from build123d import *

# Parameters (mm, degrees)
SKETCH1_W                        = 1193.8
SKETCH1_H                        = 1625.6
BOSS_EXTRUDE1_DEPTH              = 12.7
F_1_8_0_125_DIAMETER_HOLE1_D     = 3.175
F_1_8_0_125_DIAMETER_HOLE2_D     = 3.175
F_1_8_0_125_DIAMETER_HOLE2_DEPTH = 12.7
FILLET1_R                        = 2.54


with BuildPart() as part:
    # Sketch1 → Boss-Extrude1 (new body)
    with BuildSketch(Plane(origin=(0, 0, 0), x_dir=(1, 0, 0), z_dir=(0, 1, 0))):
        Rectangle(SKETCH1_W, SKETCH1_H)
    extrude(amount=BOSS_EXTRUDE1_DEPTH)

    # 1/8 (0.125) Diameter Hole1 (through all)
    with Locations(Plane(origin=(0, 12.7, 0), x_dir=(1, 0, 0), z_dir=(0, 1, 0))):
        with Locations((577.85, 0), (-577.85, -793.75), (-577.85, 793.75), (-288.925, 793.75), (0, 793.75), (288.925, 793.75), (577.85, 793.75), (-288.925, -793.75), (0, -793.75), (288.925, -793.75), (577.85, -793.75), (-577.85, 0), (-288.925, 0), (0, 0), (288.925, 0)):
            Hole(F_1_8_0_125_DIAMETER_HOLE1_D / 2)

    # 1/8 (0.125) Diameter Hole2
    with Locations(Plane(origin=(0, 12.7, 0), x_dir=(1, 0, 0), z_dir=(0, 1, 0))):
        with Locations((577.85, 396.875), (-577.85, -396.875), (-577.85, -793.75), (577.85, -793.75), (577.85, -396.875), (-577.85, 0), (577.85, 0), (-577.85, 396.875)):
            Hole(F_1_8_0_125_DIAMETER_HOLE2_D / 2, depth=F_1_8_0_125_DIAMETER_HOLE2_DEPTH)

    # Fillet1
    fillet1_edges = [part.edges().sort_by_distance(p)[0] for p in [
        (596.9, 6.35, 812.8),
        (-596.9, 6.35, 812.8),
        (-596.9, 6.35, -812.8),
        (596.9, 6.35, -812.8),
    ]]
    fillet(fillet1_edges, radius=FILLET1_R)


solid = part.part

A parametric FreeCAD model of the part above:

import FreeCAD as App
import Part
import Sketcher
Q = App.Units.Quantity


def edges_at(feature, points):
    """Names of the edges that pass closest to the given points."""
    edges = feature.Shape.Edges
    near = lambda p: min(range(len(edges)), key=lambda i: edges[i].distToShape(Part.Vertex(*p))[0])
    return sorted({f"Edge{near(p) + 1}" for p in points})


def add_polygon(sketch, points):
    """Adds a closed chain of lines whose ends are joined by coincident constraints."""
    first, n = sketch.GeometryCount, len(points)
    for a, b in zip(points, points[1:] + points[:1]):
        sketch.addGeometry(Part.LineSegment(App.Vector(*a, 0), App.Vector(*b, 0)), False)
    for i in range(n):
        sketch.addConstraint(Sketcher.Constraint("Coincident", first + i, 2, first + (i + 1) % n, 1))

doc = App.newDocument("Part")
body = doc.addObject("PartDesign::Body", "Body")

sketch1 = doc.addObject("Sketcher::SketchObject", "Sketch")
body.addObject(sketch1)
sketch1.AttachmentSupport = (doc.XZ_Plane, [""])
sketch1.MapMode = "FlatFace"
add_polygon(sketch1, [(-597, -813), (-597, 813), (597, 813), (597, -813)])
sketch1.addConstraint(Sketcher.Constraint("Vertical", 0))
sketch1.addConstraint(Sketcher.Constraint("Horizontal", 1))
sketch1.addConstraint(Sketcher.Constraint("Vertical", 2))
sketch1.addConstraint(Sketcher.Constraint("Horizontal", 3))
sketch1.addConstraint(Sketcher.Constraint("Symmetric", 0, 2, 2, 2, -1, 1))
sketch1.addConstraint(Sketcher.Constraint("DistanceX", 1, 1, 1, 2, Q("47 in")))
sketch1.addConstraint(Sketcher.Constraint("DistanceY", 0, 1, 0, 2, Q("64 in")))
pad1 = doc.addObject("PartDesign::Pad", "Pad")
body.addObject(pad1)
pad1.Profile = sketch1
pad1.Length = Q("0.5 in")
pad1.Reversed = True

sketch2 = doc.addObject("Sketcher::SketchObject", "Sketch001")
body.addObject(sketch2)
sketch2.AttachmentSupport = (doc.XZ_Plane, [""])
sketch2.MapMode = "FlatFace"
sketch2.AttachmentOffset = App.Placement(App.Vector(0, 0, -0.5 * 25.4), App.Rotation())
sketch2.addGeometry(Part.Circle(App.Vector(577.9, 0, 0), App.Vector(0, 0, 1), 1.6), False)
sketch2.addGeometry(Part.Circle(App.Vector(-577.9, 793.8, 0), App.Vector(0, 0, 1), 1.6), False)
sketch2.addGeometry(Part.Circle(App.Vector(-577.9, -793.8, 0), App.Vector(0, 0, 1), 1.6), False)
sketch2.addGeometry(Part.Circle(App.Vector(-288.9, -793.8, 0), App.Vector(0, 0, 1), 1.6), False)
sketch2.addGeometry(Part.Circle(App.Vector(0, -793.8, 0), App.Vector(0, 0, 1), 1.6), False)
sketch2.addGeometry(Part.Circle(App.Vector(288.9, -793.8, 0), App.Vector(0, 0, 1), 1.6), False)
sketch2.addGeometry(Part.Circle(App.Vector(577.9, -793.8, 0), App.Vector(0, 0, 1), 1.6), False)
sketch2.addGeometry(Part.Circle(App.Vector(-288.9, 793.8, 0), App.Vector(0, 0, 1), 1.6), False)
sketch2.addGeometry(Part.Circle(App.Vector(0, 793.8, 0), App.Vector(0, 0, 1), 1.6), False)
sketch2.addGeometry(Part.Circle(App.Vector(288.9, 793.8, 0), App.Vector(0, 0, 1), 1.6), False)
sketch2.addGeometry(Part.Circle(App.Vector(577.9, 793.8, 0), App.Vector(0, 0, 1), 1.6), False)
sketch2.addGeometry(Part.Circle(App.Vector(-577.9, 0, 0), App.Vector(0, 0, 1), 1.6), False)
sketch2.addGeometry(Part.Circle(App.Vector(-288.9, 0, 0), App.Vector(0, 0, 1), 1.6), False)
sketch2.addGeometry(Part.Circle(App.Vector(0, 0, 0), App.Vector(0, 0, 1), 1.6), False)
sketch2.addGeometry(Part.Circle(App.Vector(288.9, 0, 0), App.Vector(0, 0, 1), 1.6), False)
sketch2.addConstraint(Sketcher.Constraint("Coincident", 13, 3, -1, 1))
sketch2.addConstraint(Sketcher.Constraint("Equal", 0, 1))
sketch2.addConstraint(Sketcher.Constraint("Equal", 1, 2))
sketch2.addConstraint(Sketcher.Constraint("Equal", 2, 3))
sketch2.addConstraint(Sketcher.Constraint("Equal", 3, 4))
sketch2.addConstraint(Sketcher.Constraint("Equal", 4, 5))
sketch2.addConstraint(Sketcher.Constraint("Equal", 5, 6))
sketch2.addConstraint(Sketcher.Constraint("Equal", 6, 7))
sketch2.addConstraint(Sketcher.Constraint("Equal", 7, 8))
sketch2.addConstraint(Sketcher.Constraint("Equal", 8, 9))
sketch2.addConstraint(Sketcher.Constraint("Equal", 9, 10))
sketch2.addConstraint(Sketcher.Constraint("Equal", 10, 11))
sketch2.addConstraint(Sketcher.Constraint("Equal", 11, 12))
sketch2.addConstraint(Sketcher.Constraint("Equal", 12, 13))
sketch2.addConstraint(Sketcher.Constraint("Equal", 13, 14))
sketch2.addConstraint(Sketcher.Constraint("Symmetric", 1, 3, 6, 3, -1, 1))
sketch2.addConstraint(Sketcher.Constraint("Symmetric", 5, 3, 7, 3, -1, 1))
sketch2.addConstraint(Sketcher.Constraint("Symmetric", 4, 3, 8, 3, -1, 1))
sketch2.addConstraint(Sketcher.Constraint("Symmetric", 3, 3, 9, 3, -1, 1))
sketch2.addConstraint(Sketcher.Constraint("Symmetric", 2, 3, 10, 3, -1, 1))
sketch2.addConstraint(Sketcher.Constraint("Symmetric", 0, 3, 11, 3, -1, 1))
sketch2.addConstraint(Sketcher.Constraint("Symmetric", 12, 3, 14, 3, -1, 1))
sketch2.addConstraint(Sketcher.Constraint("Symmetric", 3, 3, 5, 3, -2))
sketch2.addConstraint(Sketcher.Constraint("Symmetric", 2, 3, 6, 3, -2))
sketch2.addConstraint(Sketcher.Constraint("PointOnObject", 0, 3, -1))
sketch2.addConstraint(Sketcher.Constraint("PointOnObject", 4, 3, -2))
sketch2.addConstraint(Sketcher.Constraint("PointOnObject", 12, 3, -1))
sketch2.addConstraint(Sketcher.Constraint("Horizontal", 2, 3, 3, 3))
sketch2.addConstraint(Sketcher.Constraint("Horizontal", 3, 3, 4, 3))
sketch2.addConstraint(Sketcher.Constraint("Vertical", 0, 3, 6, 3))
sketch2.addConstraint(Sketcher.Constraint("Vertical", 7, 3, 12, 3))
sketch2.addConstraint(Sketcher.Constraint("Diameter", 0, Q("0.125 in")))
sketch2.addConstraint(Sketcher.Constraint("DistanceX", 1, 3, 0, 3, Q("45.5 in")))
sketch2.addConstraint(Sketcher.Constraint("DistanceY", 2, 3, 1, 3, Q("62.5 in")))
sketch2.addConstraint(Sketcher.Constraint("DistanceX", 3, 3, 5, 3, Q("22.75 in")))
doc.recompute()
hole = doc.addObject("PartDesign::Hole", "Hole")
body.addObject(hole)
hole.Profile = sketch2
hole.ThreadType = "None"
hole.Diameter = Q("0.125 in")
hole.DepthType = "ThroughAll"
hole.Reversed = True

sketch3 = doc.addObject("Sketcher::SketchObject", "Sketch002")
body.addObject(sketch3)
sketch3.AttachmentSupport = (doc.XZ_Plane, [""])
sketch3.MapMode = "FlatFace"
sketch3.AttachmentOffset = App.Placement(App.Vector(0, 0, -0.5 * 25.4), App.Rotation())
sketch3.addGeometry(Part.Circle(App.Vector(577.9, -396.9, 0), App.Vector(0, 0, 1), 1.6), False)
sketch3.addGeometry(Part.Circle(App.Vector(-577.9, 396.9, 0), App.Vector(0, 0, 1), 1.6), False)
sketch3.addGeometry(Part.Circle(App.Vector(-577.9, 793.8, 0), App.Vector(0, 0, 1), 1.6), False)
sketch3.addGeometry(Part.Circle(App.Vector(577.9, 793.8, 0), App.Vector(0, 0, 1), 1.6), False)
sketch3.addGeometry(Part.Circle(App.Vector(577.9, 396.9, 0), App.Vector(0, 0, 1), 1.6), False)
sketch3.addGeometry(Part.Circle(App.Vector(-577.9, 0, 0), App.Vector(0, 0, 1), 1.6), False)
sketch3.addGeometry(Part.Circle(App.Vector(577.9, 0, 0), App.Vector(0, 0, 1), 1.6), False)
sketch3.addGeometry(Part.Circle(App.Vector(-577.9, -396.9, 0), App.Vector(0, 0, 1), 1.6), False)
sketch3.addConstraint(Sketcher.Constraint("Equal", 0, 1))
sketch3.addConstraint(Sketcher.Constraint("Equal", 1, 2))
sketch3.addConstraint(Sketcher.Constraint("Equal", 2, 3))
sketch3.addConstraint(Sketcher.Constraint("Equal", 3, 4))
sketch3.addConstraint(Sketcher.Constraint("Equal", 4, 5))
sketch3.addConstraint(Sketcher.Constraint("Equal", 5, 6))
sketch3.addConstraint(Sketcher.Constraint("Equal", 6, 7))
sketch3.addConstraint(Sketcher.Constraint("Symmetric", 0, 3, 1, 3, -1, 1))
sketch3.addConstraint(Sketcher.Constraint("Symmetric", 5, 3, 6, 3, -1, 1))
sketch3.addConstraint(Sketcher.Constraint("Symmetric", 4, 3, 7, 3, -1, 1))
sketch3.addConstraint(Sketcher.Constraint("Symmetric", 2, 3, 3, 3, -2))
sketch3.addConstraint(Sketcher.Constraint("Symmetric", 1, 3, 4, 3, -2))
sketch3.addConstraint(Sketcher.Constraint("PointOnObject", 5, 3, -1))
sketch3.addConstraint(Sketcher.Constraint("Vertical", 1, 3, 2, 3))
sketch3.addConstraint(Sketcher.Constraint("Vertical", 2, 3, 5, 3))
sketch3.addConstraint(Sketcher.Constraint("Diameter", 0, Q("0.125 in")))
sketch3.addConstraint(Sketcher.Constraint("DistanceX", 1, 3, 0, 3, Q("45.5 in")))
sketch3.addConstraint(Sketcher.Constraint("DistanceY", -1, 1, 2, 3, Q("31.25 in")))
sketch3.addConstraint(Sketcher.Constraint("DistanceY", 0, 3, 1, 3, Q("31.25 in")))
doc.recompute()
hole2 = doc.addObject("PartDesign::Hole", "Hole001")
body.addObject(hole2)
hole2.Profile = sketch3
hole2.ThreadType = "None"
hole2.Diameter = Q("0.125 in")
hole2.DepthType = "Dimension"
hole2.Depth = Q("0.5 in")
hole2.DrillPoint = "Flat"
hole2.Reversed = True
doc.recompute()

fillet = doc.addObject("PartDesign::Fillet", "Fillet")
body.addObject(fillet)
fillet.Base = (hole2, edges_at(hole2, [
    (596.9, 6.35, 812.8),
    (-596.9, 6.35, 812.8),
    (-596.9, 6.35, -812.8),
    (596.9, 6.35, -812.8),
]))
fillet.Radius = Q("0.1 in")

doc.recompute()
